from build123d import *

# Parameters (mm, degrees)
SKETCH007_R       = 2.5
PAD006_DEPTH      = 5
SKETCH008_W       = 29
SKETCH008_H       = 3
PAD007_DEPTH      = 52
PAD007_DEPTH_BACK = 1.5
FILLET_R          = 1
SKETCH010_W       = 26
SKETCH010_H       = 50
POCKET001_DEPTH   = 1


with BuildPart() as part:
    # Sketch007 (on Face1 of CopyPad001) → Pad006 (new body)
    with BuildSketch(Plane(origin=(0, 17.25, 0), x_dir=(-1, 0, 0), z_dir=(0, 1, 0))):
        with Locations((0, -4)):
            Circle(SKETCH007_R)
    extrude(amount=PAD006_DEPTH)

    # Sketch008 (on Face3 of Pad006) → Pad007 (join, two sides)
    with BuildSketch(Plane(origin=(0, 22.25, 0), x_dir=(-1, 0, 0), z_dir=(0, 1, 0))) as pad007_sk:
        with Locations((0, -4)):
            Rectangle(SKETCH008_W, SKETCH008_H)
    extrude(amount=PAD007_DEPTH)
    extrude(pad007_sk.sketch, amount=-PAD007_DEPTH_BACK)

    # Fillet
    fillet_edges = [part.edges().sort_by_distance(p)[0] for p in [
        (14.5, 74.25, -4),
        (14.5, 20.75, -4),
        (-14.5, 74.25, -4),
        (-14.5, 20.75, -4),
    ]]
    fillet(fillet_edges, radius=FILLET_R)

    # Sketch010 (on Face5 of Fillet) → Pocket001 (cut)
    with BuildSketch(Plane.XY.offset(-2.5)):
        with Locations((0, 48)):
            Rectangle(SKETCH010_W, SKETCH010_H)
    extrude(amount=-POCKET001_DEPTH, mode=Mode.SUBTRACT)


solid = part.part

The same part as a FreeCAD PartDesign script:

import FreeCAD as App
import Part
import Sketcher

V = App.Vector
Q = App.Units.Quantity


def edges_at(feature, points):
    """Names of the edges that pass closest to the given points."""
    edges = feature.Shape.Edges
    near = lambda p: min(range(len(edges)), key=lambda i: edges[i].distToShape(Part.Vertex(*p))[0])
    return sorted({f"Edge{near(p) + 1}" for p in points})

doc = App.newDocument("Part")
body = doc.addObject("PartDesign::Body", "Body")

# Sketch on XZ plane
sketch1 = doc.addObject("Sketcher::SketchObject", "Sketch")
body.addObject(sketch1)
sketch1.AttachmentSupport = (doc.XZ_Plane, [""])
sketch1.MapMode = "FlatFace"
sketch1.AttachmentOffset = App.Placement(V(0, 0, -17.25), App.Rotation())
sketch1.addGeometry(Part.Circle(V(0, -4, 0), V(0, 0, 1), 2.5), False)
sketch1.addConstraint([
    Sketcher.Constraint("PointOnObject", 0, 3, -2),
    Sketcher.Constraint("Diameter", 0, Q("5 mm")),
    Sketcher.Constraint("DistanceY", 0, 3, -1, 1, Q("4 mm")),
])
pad1 = doc.addObject("PartDesign::Pad", "Pad")
body.addObject(pad1)
pad1.Profile = sketch1
pad1.Length = 5
pad1.Reversed = True

# Sketch on XZ plane
sketch2 = doc.addObject("Sketcher::SketchObject", "Sketch001")
body.addObject(sketch2)
sketch2.AttachmentSupport = (doc.XZ_Plane, [""])
sketch2.MapMode = "FlatFace"
sketch2.AttachmentOffset = App.Placement(V(0, 0, -22.25), App.Rotation())
sketch2.addGeometry([
    Part.LineSegment(V(14.5, -2.5, 0), V(14.5, -5.5, 0)),
    Part.LineSegment(V(14.5, -5.5, 0), V(-14.5, -5.5, 0)),
    Part.LineSegment(V(-14.5, -5.5, 0), V(-14.5, -2.5, 0)),
    Part.LineSegment(V(-14.5, -2.5, 0), V(14.5, -2.5, 0)),
], False)
sketch2.addConstraint([
    Sketcher.Constraint("Coincident", 0, 2, 1, 1),
    Sketcher.Constraint("Coincident", 1, 2, 2, 1),
    Sketcher.Constraint("Coincident", 2, 2, 3, 1),
    Sketcher.Constraint("Coincident", 3, 2, 0, 1),
    Sketcher.Constraint("Vertical", 0),
    Sketcher.Constraint("Horizontal", 1),
    Sketcher.Constraint("Vertical", 2),
    Sketcher.Constraint("Horizontal", 3),
    Sketcher.Constraint("DistanceX", 1, 2, 1, 1, Q("29 mm")),
    Sketcher.Constraint("DistanceY", 0, 2, 0, 1, Q("3 mm")),
    Sketcher.Constraint("DistanceX", -1, 1, 0, 2, Q("14.5 mm")),
    Sketcher.Constraint("DistanceY", 0, 2, -1, 1, Q("5.5 mm")),
])
pad2 = doc.addObject("PartDesign::Pad", "Pad001")
body.addObject(pad2)
pad2.Profile = sketch2
pad2.Type = "TwoLengths"
pad2.Length = 52
pad2.Length2 = 1.5
pad2.Reversed = True
doc.recompute()

fillet = doc.addObject("PartDesign::Fillet", "Fillet")
body.addObject(fillet)
fillet.Base = (pad2, edges_at(pad2, [
    (14.5, 74.25, -4),
    (14.5, 20.75, -4),
    (-14.5, 74.25, -4),
    (-14.5, 20.75, -4),
]))
fillet.Radius = 1

# Sketch on XY plane
sketch3 = doc.addObject("Sketcher::SketchObject", "Sketch002")
body.addObject(sketch3)
sketch3.AttachmentSupport = (doc.XY_Plane, [""])
sketch3.MapMode = "FlatFace"
sketch3.AttachmentOffset = App.Placement(V(0, 0, -2.5), App.Rotation())
sketch3.addGeometry([
    Part.LineSegment(V(-13, 73, 0), V(-13, 23, 0)),
    Part.LineSegment(V(-13, 23, 0), V(13, 23, 0)),
    Part.LineSegment(V(13, 23, 0), V(13, 73, 0)),
    Part.LineSegment(V(13, 73, 0), V(-13, 73, 0)),
], False)
sketch3.addConstraint([
    Sketcher.Constraint("Coincident", 0, 2, 1, 1),
    Sketcher.Constraint("Coincident", 1, 2, 2, 1),
    Sketcher.Constraint("Coincident", 2, 2, 3, 1),
    Sketcher.Constraint("Coincident", 3, 2, 0, 1),
    Sketcher.Constraint("Vertical", 0),
    Sketcher.Constraint("Horizontal", 1),
    Sketcher.Constraint("Vertical", 2),
    Sketcher.Constraint("Horizontal", 3),
    Sketcher.Constraint("DistanceX", 1, 1, 1, 2, Q("26 mm")),
    Sketcher.Constraint("DistanceY", 0, 2, 0, 1, Q("50 mm")),
    Sketcher.Constraint("DistanceX", 0, 2, -1, 1, Q("13 mm")),
    Sketcher.Constraint("DistanceY", -1, 1, 0, 2, Q("23 mm")),
])
pocket1 = doc.addObject("PartDesign::Pocket", "Pocket")
body.addObject(pocket1)
pocket1.Profile = sketch3
pocket1.Length = 1

doc.recompute()
